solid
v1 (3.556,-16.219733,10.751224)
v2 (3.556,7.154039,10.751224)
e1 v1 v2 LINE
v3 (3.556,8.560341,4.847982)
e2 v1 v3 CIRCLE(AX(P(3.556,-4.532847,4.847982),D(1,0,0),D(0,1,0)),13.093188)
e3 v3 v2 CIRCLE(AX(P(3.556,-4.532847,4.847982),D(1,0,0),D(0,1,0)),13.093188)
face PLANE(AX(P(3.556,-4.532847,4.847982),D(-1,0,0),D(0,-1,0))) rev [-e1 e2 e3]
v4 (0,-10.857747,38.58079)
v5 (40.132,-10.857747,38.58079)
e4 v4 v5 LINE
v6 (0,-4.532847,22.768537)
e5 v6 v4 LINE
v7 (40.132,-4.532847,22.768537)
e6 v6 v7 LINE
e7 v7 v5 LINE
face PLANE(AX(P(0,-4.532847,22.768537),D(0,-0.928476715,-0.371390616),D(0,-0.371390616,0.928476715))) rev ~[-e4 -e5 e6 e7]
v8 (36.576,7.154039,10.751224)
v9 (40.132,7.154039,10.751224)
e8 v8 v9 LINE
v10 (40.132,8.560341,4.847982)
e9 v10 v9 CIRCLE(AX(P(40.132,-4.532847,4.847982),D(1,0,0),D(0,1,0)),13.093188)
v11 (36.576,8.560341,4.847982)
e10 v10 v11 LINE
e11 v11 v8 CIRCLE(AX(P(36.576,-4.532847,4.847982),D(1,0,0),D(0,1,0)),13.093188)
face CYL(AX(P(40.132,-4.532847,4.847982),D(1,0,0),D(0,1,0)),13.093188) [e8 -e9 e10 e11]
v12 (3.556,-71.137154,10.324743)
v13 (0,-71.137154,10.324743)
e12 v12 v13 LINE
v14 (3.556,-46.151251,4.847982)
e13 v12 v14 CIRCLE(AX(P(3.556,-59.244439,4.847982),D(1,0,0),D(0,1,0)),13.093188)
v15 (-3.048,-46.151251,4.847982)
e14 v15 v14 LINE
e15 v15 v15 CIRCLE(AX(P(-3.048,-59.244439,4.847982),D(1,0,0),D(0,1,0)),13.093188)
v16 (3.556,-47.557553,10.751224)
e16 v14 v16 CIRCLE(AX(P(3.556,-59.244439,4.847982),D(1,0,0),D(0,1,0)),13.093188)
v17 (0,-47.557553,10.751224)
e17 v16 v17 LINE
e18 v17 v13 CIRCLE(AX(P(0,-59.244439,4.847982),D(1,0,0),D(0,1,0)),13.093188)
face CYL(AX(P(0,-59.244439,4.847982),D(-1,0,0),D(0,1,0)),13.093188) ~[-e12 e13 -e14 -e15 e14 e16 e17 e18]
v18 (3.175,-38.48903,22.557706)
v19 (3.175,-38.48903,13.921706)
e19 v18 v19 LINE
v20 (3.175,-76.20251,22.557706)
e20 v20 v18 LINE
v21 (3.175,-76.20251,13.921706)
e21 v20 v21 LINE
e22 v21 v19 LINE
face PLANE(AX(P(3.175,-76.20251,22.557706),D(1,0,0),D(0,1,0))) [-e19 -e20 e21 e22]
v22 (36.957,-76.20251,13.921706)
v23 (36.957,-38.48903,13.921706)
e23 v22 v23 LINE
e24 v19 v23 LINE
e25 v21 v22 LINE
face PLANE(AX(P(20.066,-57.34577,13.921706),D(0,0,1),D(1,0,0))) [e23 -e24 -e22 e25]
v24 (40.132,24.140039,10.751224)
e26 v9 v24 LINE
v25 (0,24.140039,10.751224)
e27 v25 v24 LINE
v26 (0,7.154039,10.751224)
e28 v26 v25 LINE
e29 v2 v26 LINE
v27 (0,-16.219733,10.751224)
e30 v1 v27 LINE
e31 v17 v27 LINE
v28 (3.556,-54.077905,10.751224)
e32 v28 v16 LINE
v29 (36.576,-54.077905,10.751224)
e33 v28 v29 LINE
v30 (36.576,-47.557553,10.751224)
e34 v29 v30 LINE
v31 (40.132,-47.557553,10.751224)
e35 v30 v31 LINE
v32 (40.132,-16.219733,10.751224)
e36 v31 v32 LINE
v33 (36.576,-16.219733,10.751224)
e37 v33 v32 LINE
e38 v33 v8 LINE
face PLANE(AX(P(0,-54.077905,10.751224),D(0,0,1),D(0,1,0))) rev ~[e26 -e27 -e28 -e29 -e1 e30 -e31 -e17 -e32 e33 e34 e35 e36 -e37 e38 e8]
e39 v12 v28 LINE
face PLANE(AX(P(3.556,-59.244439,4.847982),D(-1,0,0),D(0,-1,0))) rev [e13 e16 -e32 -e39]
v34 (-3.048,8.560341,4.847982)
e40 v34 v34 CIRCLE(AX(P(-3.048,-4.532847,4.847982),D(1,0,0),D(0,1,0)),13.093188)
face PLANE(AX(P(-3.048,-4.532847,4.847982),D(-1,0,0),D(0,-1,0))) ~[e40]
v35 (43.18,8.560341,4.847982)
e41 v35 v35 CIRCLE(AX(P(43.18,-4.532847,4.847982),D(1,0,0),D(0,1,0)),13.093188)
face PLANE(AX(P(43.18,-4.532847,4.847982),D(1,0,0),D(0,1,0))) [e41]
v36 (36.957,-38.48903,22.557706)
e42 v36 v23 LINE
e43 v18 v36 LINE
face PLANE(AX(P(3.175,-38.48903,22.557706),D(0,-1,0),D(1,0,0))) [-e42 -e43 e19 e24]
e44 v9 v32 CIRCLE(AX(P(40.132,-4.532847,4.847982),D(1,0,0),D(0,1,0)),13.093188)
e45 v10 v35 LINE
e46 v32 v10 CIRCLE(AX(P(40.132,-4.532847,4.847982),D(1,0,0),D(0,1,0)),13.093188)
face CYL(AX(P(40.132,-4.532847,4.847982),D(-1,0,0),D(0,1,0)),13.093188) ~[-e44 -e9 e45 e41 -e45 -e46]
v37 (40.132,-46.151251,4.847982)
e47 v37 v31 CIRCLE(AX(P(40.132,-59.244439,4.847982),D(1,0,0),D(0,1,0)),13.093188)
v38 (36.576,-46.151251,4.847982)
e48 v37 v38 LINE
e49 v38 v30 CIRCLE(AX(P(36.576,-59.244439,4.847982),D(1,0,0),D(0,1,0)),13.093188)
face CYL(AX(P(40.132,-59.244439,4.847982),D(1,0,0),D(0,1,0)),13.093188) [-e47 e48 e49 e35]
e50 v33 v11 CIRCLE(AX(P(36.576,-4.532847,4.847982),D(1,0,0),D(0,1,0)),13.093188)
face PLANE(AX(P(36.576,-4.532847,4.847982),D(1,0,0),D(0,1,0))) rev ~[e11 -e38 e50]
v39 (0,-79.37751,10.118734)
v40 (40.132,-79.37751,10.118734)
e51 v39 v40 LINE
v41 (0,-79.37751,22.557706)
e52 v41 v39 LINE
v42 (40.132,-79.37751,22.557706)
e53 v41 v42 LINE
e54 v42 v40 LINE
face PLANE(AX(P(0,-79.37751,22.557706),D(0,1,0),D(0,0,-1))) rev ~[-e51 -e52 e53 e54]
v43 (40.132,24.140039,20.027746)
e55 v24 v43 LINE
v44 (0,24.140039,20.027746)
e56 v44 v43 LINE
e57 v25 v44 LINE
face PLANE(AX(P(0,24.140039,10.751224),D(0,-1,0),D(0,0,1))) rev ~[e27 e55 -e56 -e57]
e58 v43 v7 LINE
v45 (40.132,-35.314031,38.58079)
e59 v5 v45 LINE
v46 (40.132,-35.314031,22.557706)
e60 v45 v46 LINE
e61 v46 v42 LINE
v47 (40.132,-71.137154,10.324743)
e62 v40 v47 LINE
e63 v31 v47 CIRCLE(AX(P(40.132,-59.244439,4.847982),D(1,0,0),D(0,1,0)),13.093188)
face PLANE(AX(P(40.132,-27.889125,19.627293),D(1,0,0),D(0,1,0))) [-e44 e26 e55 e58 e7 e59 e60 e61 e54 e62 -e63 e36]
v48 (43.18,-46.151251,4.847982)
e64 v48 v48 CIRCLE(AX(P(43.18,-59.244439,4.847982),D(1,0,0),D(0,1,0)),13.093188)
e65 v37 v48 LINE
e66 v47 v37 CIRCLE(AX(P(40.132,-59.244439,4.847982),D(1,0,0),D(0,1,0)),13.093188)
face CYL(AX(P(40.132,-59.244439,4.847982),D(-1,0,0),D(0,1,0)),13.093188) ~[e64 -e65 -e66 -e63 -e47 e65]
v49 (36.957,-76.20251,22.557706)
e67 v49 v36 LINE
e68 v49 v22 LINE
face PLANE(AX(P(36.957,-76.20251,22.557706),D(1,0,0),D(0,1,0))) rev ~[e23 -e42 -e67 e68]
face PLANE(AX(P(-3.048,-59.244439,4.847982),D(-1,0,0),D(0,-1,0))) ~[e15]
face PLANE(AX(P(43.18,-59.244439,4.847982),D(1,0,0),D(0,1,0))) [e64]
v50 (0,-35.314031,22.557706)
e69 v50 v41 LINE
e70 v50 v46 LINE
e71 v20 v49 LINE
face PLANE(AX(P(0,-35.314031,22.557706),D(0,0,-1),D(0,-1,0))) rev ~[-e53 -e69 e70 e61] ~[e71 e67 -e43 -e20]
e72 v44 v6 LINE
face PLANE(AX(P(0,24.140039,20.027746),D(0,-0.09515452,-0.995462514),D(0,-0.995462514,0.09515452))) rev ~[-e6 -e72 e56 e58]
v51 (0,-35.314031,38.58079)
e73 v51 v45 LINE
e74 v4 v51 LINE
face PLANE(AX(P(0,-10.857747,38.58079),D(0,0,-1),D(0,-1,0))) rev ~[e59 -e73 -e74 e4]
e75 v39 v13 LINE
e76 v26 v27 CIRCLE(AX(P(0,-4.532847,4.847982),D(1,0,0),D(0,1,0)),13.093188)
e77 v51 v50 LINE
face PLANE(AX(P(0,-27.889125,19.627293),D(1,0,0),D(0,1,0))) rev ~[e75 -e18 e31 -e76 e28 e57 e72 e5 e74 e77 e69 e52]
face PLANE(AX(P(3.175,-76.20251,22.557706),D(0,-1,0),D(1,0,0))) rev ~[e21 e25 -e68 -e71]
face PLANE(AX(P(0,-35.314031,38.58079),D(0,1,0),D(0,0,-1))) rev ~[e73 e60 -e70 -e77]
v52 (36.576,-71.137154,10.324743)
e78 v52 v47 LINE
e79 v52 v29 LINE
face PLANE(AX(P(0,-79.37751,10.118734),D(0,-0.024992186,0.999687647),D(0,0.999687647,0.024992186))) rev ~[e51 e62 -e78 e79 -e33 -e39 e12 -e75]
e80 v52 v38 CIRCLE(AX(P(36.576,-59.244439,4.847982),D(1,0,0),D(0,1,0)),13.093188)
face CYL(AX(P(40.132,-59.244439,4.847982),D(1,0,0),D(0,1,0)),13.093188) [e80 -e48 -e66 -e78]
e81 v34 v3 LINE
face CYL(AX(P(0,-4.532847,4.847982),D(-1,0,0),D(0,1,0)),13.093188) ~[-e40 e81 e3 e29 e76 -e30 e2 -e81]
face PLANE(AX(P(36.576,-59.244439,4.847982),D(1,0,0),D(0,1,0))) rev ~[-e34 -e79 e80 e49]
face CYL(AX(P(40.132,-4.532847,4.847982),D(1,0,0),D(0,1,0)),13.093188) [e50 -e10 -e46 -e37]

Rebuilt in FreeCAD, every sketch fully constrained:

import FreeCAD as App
import Part
import Sketcher

V = App.Vector
Q = App.Units.Quantity

doc = App.newDocument("Part")
body = doc.addObject("PartDesign::Body", "Body")

# Sketch on YZ plane
sketch1 = doc.addObject("Sketcher::SketchObject", "Sketch")
body.addObject(sketch1)
sketch1.AttachmentSupport = (doc.YZ_Plane, [""])
sketch1.MapMode = "FlatFace"
sketch1.addGeometry([
    Part.LineSegment(V(-79, 10, 0), V(-54, 11, 0)),  # 0
    Part.LineSegment(V(-54, 11, 0), V(24, 11, 0)),  # 1
    Part.LineSegment(V(24, 11, 0), V(24, 20, 0)),  # 2
    Part.LineSegment(V(24, 20, 0), V(-5, 23, 0)),  # 3
    Part.LineSegment(V(-5, 23, 0), V(-11, 39, 0)),  # 4
    Part.LineSegment(V(-11, 39, 0), V(-35, 39, 0)),  # 5
    Part.LineSegment(V(-35, 39, 0), V(-35, 23, 0)),  # 6
    Part.LineSegment(V(-35, 23, 0), V(-79, 23, 0)),  # 7
    Part.LineSegment(V(-79, 23, 0), V(-79, 10, 0)),  # 8
], False)
sketch1.addConstraint([
    Sketcher.Constraint("Coincident", 0, 2, 1, 1),
    Sketcher.Constraint("Coincident", 1, 2, 2, 1),
    Sketcher.Constraint("Coincident", 2, 2, 3, 1),
    Sketcher.Constraint("Coincident", 3, 2, 4, 1),
    Sketcher.Constraint("Coincident", 4, 2, 5, 1),
    Sketcher.Constraint("Coincident", 5, 2, 6, 1),
    Sketcher.Constraint("Coincident", 6, 2, 7, 1),
    Sketcher.Constraint("Coincident", 7, 2, 8, 1),
    Sketcher.Constraint("Coincident", 8, 2, 0, 1),
    Sketcher.Constraint("Horizontal", 1),
    Sketcher.Constraint("Vertical", 2),
    Sketcher.Constraint("Horizontal", 5),
    Sketcher.Constraint("Vertical", 6),
    Sketcher.Constraint("Horizontal", 7),
    Sketcher.Constraint("Vertical", 8),
    Sketcher.Constraint("DistanceX", 7, 2, 7, 1, 44.063479),
    Sketcher.Constraint("DistanceX", 4, 2, 3, 2, 6.3249),
    Sketcher.Constraint("Distance", 0, 25.30751),
    Sketcher.Constraint("Distance", 3, 28.803582),
    Sketcher.Constraint("DistanceX", 1, 1, 1, 2, 78.217944),
    Sketcher.Constraint("DistanceX", 5, 2, 5, 1, 24.456284),
    Sketcher.Constraint("DistanceY", 2, 1, 2, 2, 9.276522),
    Sketcher.Constraint("DistanceY", 6, 2, 6, 1, 16.023084),
    Sketcher.Constraint("DistanceY", 8, 2, 8, 1, 12.438972),
    Sketcher.Constraint("DistanceX", -1, 1, 1, 2, 24.140039),
    Sketcher.Constraint("DistanceY", -1, 1, 4, 2, 38.58079),
    Sketcher.Constraint("DistanceX", 5, 2, -1, 1, 35.314031),
])
pad1 = doc.addObject("PartDesign::Pad", "Pad")
body.addObject(pad1)
pad1.Profile = sketch1
pad1.Length = Q("1.58 in")

# Sketch on YZ plane
sketch2 = doc.addObject("Sketcher::SketchObject", "Sketch001")
body.addObject(sketch2)
sketch2.AttachmentSupport = (doc.YZ_Plane, [""])
sketch2.MapMode = "FlatFace"
sketch2.AttachmentOffset = App.Placement(V(0, 0, 1.58 * 25.4), App.Rotation())
sketch2.addGeometry([
    Part.Circle(V(-59, 5, 0), V(0, 0, 1), 13),
    Part.Circle(V(-5, 5, 0), V(0, 0, 1), 13),
], False)
sketch2.addConstraint([
    Sketcher.Constraint("Equal", 0, 1),
    Sketcher.Constraint("Horizontal", 0, 3, 1, 3),
    Sketcher.Constraint("Diameter", 0, 26.186376),
    Sketcher.Constraint("DistanceX", 0, 3, -1, 1, 59.244439),
    Sketcher.Constraint("DistanceX", 0, 3, 1, 3, 54.711592),
    Sketcher.Constraint("DistanceY", -1, 1, 0, 3, 4.847982),
])
pad2 = doc.addObject("PartDesign::Pad", "Pad001")
body.addObject(pad2)
pad2.Profile = sketch2
pad2.Type = "TwoLengths"
pad2.Length = Q("0.12 in")
pad2.Length2 = Q("0.14 in")
body2 = doc.addObject("PartDesign::Body", "Body001")
doc.recompute()

body2.BaseFeature = body
doc.recompute()

mirroring = doc.addObject("Part::Mirroring", "Mirroring")
mirroring.Source = body
mirroring.Base = V(20.066, -10.857747, 38.58079)
mirroring.Normal = V(1, 0, 0)
body3 = doc.addObject("PartDesign::Body", "Body002")
body3.BaseFeature = mirroring
boolean = doc.addObject("PartDesign::Boolean", "Boolean")
body2.addObject(boolean)
boolean.Type = "Fuse"
boolean.addObjects([body3])
doc.recompute()

# Sketch on XY plane
sketch3 = doc.addObject("Sketcher::SketchObject", "Sketch002")
body2.addObject(sketch3)
sketch3.AttachmentSupport = (doc.getObject("XY_Plane001"), [""])
sketch3.MapMode = "FlatFace"
sketch3.AttachmentOffset = App.Placement(V(0, 0, 22.557706), App.Rotation())
sketch3.addGeometry([
    Part.LineSegment(V(3, -38, 0), V(3, -76, 0)),
    Part.LineSegment(V(3, -76, 0), V(37, -76, 0)),
    Part.LineSegment(V(37, -76, 0), V(37, -38, 0)),
    Part.LineSegment(V(37, -38, 0), V(3, -38, 0)),
], False)
sketch3.addConstraint([
    Sketcher.Constraint("Coincident", 0, 2, 1, 1),
    Sketcher.Constraint("Coincident", 1, 2, 2, 1),
    Sketcher.Constraint("Coincident", 2, 2, 3, 1),
    Sketcher.Constraint("Coincident", 3, 2, 0, 1),
    Sketcher.Constraint("Vertical", 0),
    Sketcher.Constraint("Horizontal", 1),
    Sketcher.Constraint("Vertical", 2),
    Sketcher.Constraint("Horizontal", 3),
    Sketcher.Constraint("DistanceX", 1, 1, 1, 2, Q("1.33 in")),
    Sketcher.Constraint("DistanceX", -1, 1, 0, 2, Q("0.125 in")),
    Sketcher.Constraint("DistanceY", 0, 2, 0, 1, 37.713479),
    Sketcher.Constraint("DistanceY", 0, 2, -1, 1, 76.20251),
])
pocket1 = doc.addObject("PartDesign::Pocket", "Pocket")
body2.addObject(pocket1)
pocket1.Profile = sketch3
pocket1.Length = Q("0.34 in")
mirroring.Visibility = False

doc.recompute()
